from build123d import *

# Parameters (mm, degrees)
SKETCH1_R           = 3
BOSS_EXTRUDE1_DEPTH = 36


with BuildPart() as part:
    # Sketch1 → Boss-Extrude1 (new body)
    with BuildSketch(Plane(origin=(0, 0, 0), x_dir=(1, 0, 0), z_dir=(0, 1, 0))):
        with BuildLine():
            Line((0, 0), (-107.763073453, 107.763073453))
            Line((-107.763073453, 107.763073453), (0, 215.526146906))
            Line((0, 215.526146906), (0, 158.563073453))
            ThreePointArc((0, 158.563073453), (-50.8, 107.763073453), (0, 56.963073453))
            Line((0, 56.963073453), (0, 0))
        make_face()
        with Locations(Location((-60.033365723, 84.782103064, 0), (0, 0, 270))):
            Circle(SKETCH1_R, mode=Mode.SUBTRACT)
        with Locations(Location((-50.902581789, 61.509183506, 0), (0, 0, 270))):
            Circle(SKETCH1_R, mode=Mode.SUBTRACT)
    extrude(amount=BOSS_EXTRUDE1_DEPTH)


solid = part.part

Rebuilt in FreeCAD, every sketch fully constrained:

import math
import FreeCAD as App
import Part
import Sketcher
from FreeCAD import Vector

doc = App.newDocument("Part")
body = doc.addObject("PartDesign::Body", "Body")

# Sketch on XZ plane
sketch1 = doc.addObject("Sketcher::SketchObject", "Sketch")
body.addObject(sketch1)
sketch1.AttachmentSupport = (doc.XZ_Plane, [""])
sketch1.MapMode = "FlatFace"
sketch1.addGeometry([
    Part.LineSegment(Vector(-107.8, -107.8, 0), Vector(0, 0, 0)),  # 0
    Part.LineSegment(Vector(0, 0, 0), Vector(0, -57, 0)),  # 1
    Part.ArcOfCircle(Part.Circle(Vector(0, -107.8, 0), Vector(0, 0, 1), 50.8), math.radians(90), math.radians(270)),  # 2
    Part.LineSegment(Vector(0, -158.6, 0), Vector(0, -215.5, 0)),  # 3
    Part.LineSegment(Vector(0, -215.5, 0), Vector(-107.8, -107.8, 0)),  # 4
    Part.Circle(Vector(-50.9, -61.5, 0), Vector(0, 0, 1), 3),  # 5
    Part.Circle(Vector(-60, -84.8, 0), Vector(0, 0, 1), 3),  # 6
], False)
sketch1.addConstraint([
    Sketcher.Constraint("Coincident", 0, 2, 1, 1),
    Sketcher.Constraint("Coincident", 1, 2, 2, 1),
    Sketcher.Constraint("Coincident", 2, 2, 3, 1),
    Sketcher.Constraint("Coincident", 3, 2, 4, 1),
    Sketcher.Constraint("Coincident", 4, 2, 0, 1),
    Sketcher.Constraint("Vertical", 1),
    Sketcher.Constraint("Vertical", 3),
    Sketcher.Constraint("Coincident", 0, 2, -1, 1),
    Sketcher.Constraint("Equal", 5, 6),
    Sketcher.Constraint("PointOnObject", 2, 3, -2),
    Sketcher.Constraint("PointOnObject", 2, 2, -2),
    Sketcher.Constraint("Perpendicular", 0, 4),
    Sketcher.Constraint("Horizontal", 2, 3, 4, 2),
    Sketcher.Constraint("Equal", 1, 3),
    Sketcher.Constraint("Diameter", 5, 6.0),
    Sketcher.Constraint("Radius", 2, 50.8),
    Sketcher.Constraint("Distance", 0, 152.4),
    Sketcher.Constraint("DistanceX", 5, 3, -1, 1, 50.902582),
    Sketcher.Constraint("DistanceY", 2, 3, 5, 3, 46.25389),
    Sketcher.Constraint("DistanceY", 6, 3, 5, 3, 23.27292),
    Sketcher.Constraint("DistanceX", 6, 3, -1, 1, 60.033366),
])
pad1 = doc.addObject("PartDesign::Pad", "Pad")
body.addObject(pad1)
pad1.Profile = sketch1
pad1.Length = 36
pad1.Reversed = True

doc.recompute()
